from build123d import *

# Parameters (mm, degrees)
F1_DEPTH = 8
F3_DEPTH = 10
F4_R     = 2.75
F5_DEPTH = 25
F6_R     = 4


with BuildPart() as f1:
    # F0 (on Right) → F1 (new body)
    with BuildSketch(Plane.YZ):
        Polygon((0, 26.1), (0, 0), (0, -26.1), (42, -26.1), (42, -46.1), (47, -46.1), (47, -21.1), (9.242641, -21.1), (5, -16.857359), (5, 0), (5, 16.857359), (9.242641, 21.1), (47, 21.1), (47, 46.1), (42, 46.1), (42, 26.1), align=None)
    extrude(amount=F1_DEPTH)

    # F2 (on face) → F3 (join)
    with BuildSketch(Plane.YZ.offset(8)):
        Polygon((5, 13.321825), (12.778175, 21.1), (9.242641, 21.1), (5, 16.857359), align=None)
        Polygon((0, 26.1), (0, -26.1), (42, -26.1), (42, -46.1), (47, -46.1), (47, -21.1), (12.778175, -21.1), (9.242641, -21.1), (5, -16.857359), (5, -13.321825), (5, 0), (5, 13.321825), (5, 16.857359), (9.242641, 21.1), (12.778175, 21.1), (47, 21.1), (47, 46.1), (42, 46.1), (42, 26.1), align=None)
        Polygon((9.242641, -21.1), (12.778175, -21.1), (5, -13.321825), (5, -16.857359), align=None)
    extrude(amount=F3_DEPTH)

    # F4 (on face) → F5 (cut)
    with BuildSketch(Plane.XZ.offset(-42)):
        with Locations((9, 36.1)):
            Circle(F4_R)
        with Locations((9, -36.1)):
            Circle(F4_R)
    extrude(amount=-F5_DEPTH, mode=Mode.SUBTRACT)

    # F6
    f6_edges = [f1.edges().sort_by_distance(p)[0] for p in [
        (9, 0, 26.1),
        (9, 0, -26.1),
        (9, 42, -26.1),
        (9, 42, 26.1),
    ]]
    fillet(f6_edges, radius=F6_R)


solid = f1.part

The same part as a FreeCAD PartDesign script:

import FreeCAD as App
import Part
import Sketcher

V = App.Vector


def edges_at(feature, points):
    """Names of the edges that pass closest to the given points."""
    edges = feature.Shape.Edges
    near = lambda p: min(range(len(edges)), key=lambda i: edges[i].distToShape(Part.Vertex(*p))[0])
    return sorted({f"Edge{near(p) + 1}" for p in points})

doc = App.newDocument("Part")
params = doc.addObject("Spreadsheet::Sheet", "Params")
for row, (alias, value) in enumerate([
    ("sketch1_width", "42 mm"),
    ("sketch1_width2", "5 mm"),
    ("sketch1_height", "20 mm"),
    ("sketch1_height2", "25 mm"),
    ("sketch1_length", "6 mm"),
    ("pad1_length", "8 mm"),
    ("sketch2_width", "5 mm"),
    ("sketch2_width2", "42 mm"),
    ("sketch2_height", "25 mm"),
    ("sketch2_height2", "20 mm"),
    ("sketch2_length", "11.000001 mm"),
    ("pad2_length", "10 mm"),
    ("sketch3_diameter", "5.5 mm"),
    ("pocket1_length", "25 mm"),
    ("fillet_radius", "4 mm"),
], start=1):
    params.set(f"A{row}", alias)
    params.set(f"B{row}", "=" + value)
    params.setAlias(f"B{row}", alias)

body = doc.addObject("PartDesign::Body", "Body")

sketch1 = doc.addObject("Sketcher::SketchObject", "Sketch")
body.addObject(sketch1)
sketch1.AttachmentSupport = (doc.YZ_Plane, [""])
sketch1.MapMode = "FlatFace"
sketch1.addGeometry(Part.LineSegment(V(0, 26.1, 0), V(0, -26.1, 0)), False)
sketch1.addGeometry(Part.LineSegment(V(0, -26.1, 0), V(42, -26.1, 0)), False)
sketch1.addGeometry(Part.LineSegment(V(42, -26.1, 0), V(42, -46.1, 0)), False)
sketch1.addGeometry(Part.LineSegment(V(42, -46.1, 0), V(47, -46.1, 0)), False)
sketch1.addGeometry(Part.LineSegment(V(47, -46.1, 0), V(47, -21.1, 0)), False)
sketch1.addGeometry(Part.LineSegment(V(47, -21.1, 0), V(9.242641, -21.1, 0)), False)
sketch1.addGeometry(Part.LineSegment(V(9.242641, -21.1, 0), V(5, -16.857359, 0)), False)
sketch1.addGeometry(Part.LineSegment(V(5, -16.857359, 0), V(5, 16.857359, 0)), False)
sketch1.addGeometry(Part.LineSegment(V(5, 16.857359, 0), V(9.242641, 21.1, 0)), False)
sketch1.addGeometry(Part.LineSegment(V(9.242641, 21.1, 0), V(47, 21.1, 0)), False)
sketch1.addGeometry(Part.LineSegment(V(47, 21.1, 0), V(47, 46.1, 0)), False)
sketch1.addGeometry(Part.LineSegment(V(47, 46.1, 0), V(42, 46.1, 0)), False)
sketch1.addGeometry(Part.LineSegment(V(42, 46.1, 0), V(42, 26.1, 0)), False)
sketch1.addGeometry(Part.LineSegment(V(42, 26.1, 0), V(0, 26.1, 0)), False)
sketch1.addConstraint(Sketcher.Constraint("Coincident", 0, 2, 1, 1))
sketch1.addConstraint(Sketcher.Constraint("Coincident", 1, 2, 2, 1))
sketch1.addConstraint(Sketcher.Constraint("Coincident", 2, 2, 3, 1))
sketch1.addConstraint(Sketcher.Constraint("Coincident", 3, 2, 4, 1))
sketch1.addConstraint(Sketcher.Constraint("Coincident", 4, 2, 5, 1))
sketch1.addConstraint(Sketcher.Constraint("Coincident", 5, 2, 6, 1))
sketch1.addConstraint(Sketcher.Constraint("Coincident", 6, 2, 7, 1))
sketch1.addConstraint(Sketcher.Constraint("Coincident", 7, 2, 8, 1))
sketch1.addConstraint(Sketcher.Constraint("Coincident", 8, 2, 9, 1))
sketch1.addConstraint(Sketcher.Constraint("Coincident", 9, 2, 10, 1))
sketch1.addConstraint(Sketcher.Constraint("Coincident", 10, 2, 11, 1))
sketch1.addConstraint(Sketcher.Constraint("Coincident", 11, 2, 12, 1))
sketch1.addConstraint(Sketcher.Constraint("Coincident", 12, 2, 13, 1))
sketch1.addConstraint(Sketcher.Constraint("Coincident", 13, 2, 0, 1))
sketch1.addConstraint(Sketcher.Constraint("Vertical", 0))
sketch1.addConstraint(Sketcher.Constraint("Horizontal", 1))
sketch1.addConstraint(Sketcher.Constraint("Vertical", 2))
sketch1.addConstraint(Sketcher.Constraint("Horizontal", 3))
sketch1.addConstraint(Sketcher.Constraint("Vertical", 4))
sketch1.addConstraint(Sketcher.Constraint("Horizontal", 5))
sketch1.addConstraint(Sketcher.Constraint("Vertical", 7))
sketch1.addConstraint(Sketcher.Constraint("Horizontal", 9))
sketch1.addConstraint(Sketcher.Constraint("Vertical", 10))
sketch1.addConstraint(Sketcher.Constraint("Horizontal", 11))
sketch1.addConstraint(Sketcher.Constraint("Vertical", 12))
sketch1.addConstraint(Sketcher.Constraint("Horizontal", 13))
sketch1.addConstraint(Sketcher.Constraint("Symmetric", 0, 2, 13, 2, -1, 1))
sketch1.addConstraint(Sketcher.Constraint("Symmetric", 5, 2, 8, 2, -1))
sketch1.addConstraint(Sketcher.Constraint("Symmetric", 3, 2, 10, 2, -1))
sketch1.addConstraint(Sketcher.Constraint("Perpendicular", 6, 8))
sketch1.addConstraint(Sketcher.Constraint("Vertical", 2, 2, 11, 2))
sketch1.addConstraint(Sketcher.Constraint("Equal", 6, 8))
sketch1.addConstraint(Sketcher.Constraint("DistanceX", 1, 1, 1, 2, 42.0))
sketch1.addConstraint(Sketcher.Constraint("DistanceX", 3, 1, 3, 2, 5.0))
sketch1.addConstraint(Sketcher.Constraint("DistanceY", 2, 2, 2, 1, 20.0))
sketch1.addConstraint(Sketcher.Constraint("DistanceY", 4, 1, 4, 2, 25.0))
sketch1.addConstraint(Sketcher.Constraint("Distance", 6, 6.0))
sketch1.addConstraint(Sketcher.Constraint("DistanceY", 0, 2, 0, 1, 52.2))
sketch1.addConstraint(Sketcher.Constraint("DistanceX", -1, 1, 6, 2, 5.0))
sketch1.setExpression("Constraints[32]", "Params.sketch1_width")
sketch1.setExpression("Constraints[33]", "Params.sketch1_width2")
sketch1.setExpression("Constraints[34]", "Params.sketch1_height")
sketch1.setExpression("Constraints[35]", "Params.sketch1_height2")
sketch1.setExpression("Constraints[36]", "Params.sketch1_length")
pad1 = doc.addObject("PartDesign::Pad", "Pad")
body.addObject(pad1)
pad1.Profile = sketch1
pad1.setExpression("Length", "Params.pad1_length")

sketch2 = doc.addObject("Sketcher::SketchObject", "Sketch001")
body.addObject(sketch2)
sketch2.AttachmentSupport = (doc.YZ_Plane, [""])
sketch2.MapMode = "FlatFace"
sketch2.AttachmentOffset = App.Placement(V(0, 0, 8), App.Rotation())
sketch2.addGeometry(Part.LineSegment(V(5, 13.321825, 0), V(12.778175, 21.1, 0)), False)
sketch2.addGeometry(Part.LineSegment(V(12.778175, 21.1, 0), V(47, 21.1, 0)), False)
sketch2.addGeometry(Part.LineSegment(V(47, 21.1, 0), V(47, 46.1, 0)), False)
sketch2.addGeometry(Part.LineSegment(V(47, 46.1, 0), V(42, 46.1, 0)), False)
sketch2.addGeometry(Part.LineSegment(V(42, 46.1, 0), V(42, 26.1, 0)), False)
sketch2.addGeometry(Part.LineSegment(V(42, 26.1, 0), V(0, 26.1, 0)), False)
sketch2.addGeometry(Part.LineSegment(V(0, 26.1, 0), V(0, -26.1, 0)), False)
sketch2.addGeometry(Part.LineSegment(V(0, -26.1, 0), V(42, -26.1, 0)), False)
sketch2.addGeometry(Part.LineSegment(V(42, -26.1, 0), V(42, -46.1, 0)), False)
sketch2.addGeometry(Part.LineSegment(V(42, -46.1, 0), V(47, -46.1, 0)), False)
sketch2.addGeometry(Part.LineSegment(V(47, -46.1, 0), V(47, -21.1, 0)), False)
sketch2.addGeometry(Part.LineSegment(V(47, -21.1, 0), V(12.778175, -21.1, 0)), False)
sketch2.addGeometry(Part.LineSegment(V(12.778175, -21.1, 0), V(5, -13.321825, 0)), False)
sketch2.addGeometry(Part.LineSegment(V(5, -13.321825, 0), V(5, 13.321825, 0)), False)
sketch2.addConstraint(Sketcher.Constraint("Coincident", 0, 2, 1, 1))
sketch2.addConstraint(Sketcher.Constraint("Coincident", 1, 2, 2, 1))
sketch2.addConstraint(Sketcher.Constraint("Coincident", 2, 2, 3, 1))
sketch2.addConstraint(Sketcher.Constraint("Coincident", 3, 2, 4, 1))
sketch2.addConstraint(Sketcher.Constraint("Coincident", 4, 2, 5, 1))
sketch2.addConstraint(Sketcher.Constraint("Coincident", 5, 2, 6, 1))
sketch2.addConstraint(Sketcher.Constraint("Coincident", 6, 2, 7, 1))
sketch2.addConstraint(Sketcher.Constraint("Coincident", 7, 2, 8, 1))
sketch2.addConstraint(Sketcher.Constraint("Coincident", 8, 2, 9, 1))
sketch2.addConstraint(Sketcher.Constraint("Coincident", 9, 2, 10, 1))
sketch2.addConstraint(Sketcher.Constraint("Coincident", 10, 2, 11, 1))
sketch2.addConstraint(Sketcher.Constraint("Coincident", 11, 2, 12, 1))
sketch2.addConstraint(Sketcher.Constraint("Coincident", 12, 2, 13, 1))
sketch2.addConstraint(Sketcher.Constraint("Coincident", 13, 2, 0, 1))
sketch2.addConstraint(Sketcher.Constraint("Horizontal", 1))
sketch2.addConstraint(Sketcher.Constraint("Vertical", 2))
sketch2.addConstraint(Sketcher.Constraint("Horizontal", 3))
sketch2.addConstraint(Sketcher.Constraint("Vertical", 4))
sketch2.addConstraint(Sketcher.Constraint("Horizontal", 5))
sketch2.addConstraint(Sketcher.Constraint("Vertical", 6))
sketch2.addConstraint(Sketcher.Constraint("Horizontal", 7))
sketch2.addConstraint(Sketcher.Constraint("Vertical", 8))
sketch2.addConstraint(Sketcher.Constraint("Horizontal", 9))
sketch2.addConstraint(Sketcher.Constraint("Vertical", 10))
sketch2.addConstraint(Sketcher.Constraint("Horizontal", 11))
sketch2.addConstraint(Sketcher.Constraint("Vertical", 13))
sketch2.addConstraint(Sketcher.Constraint("Symmetric", 5, 2, 6, 2, -1, 1))
sketch2.addConstraint(Sketcher.Constraint("Symmetric", 3, 2, 8, 2, -1))
sketch2.addConstraint(Sketcher.Constraint("Symmetric", 1, 2, 10, 2, -1))
sketch2.addConstraint(Sketcher.Constraint("Perpendicular", 0, 12))
sketch2.addConstraint(Sketcher.Constraint("Vertical", 0, 2, 11, 2))
sketch2.addConstraint(Sketcher.Constraint("Equal", 0, 12))
sketch2.addConstraint(Sketcher.Constraint("DistanceX", 3, 2, 3, 1, 5.0))
sketch2.addConstraint(Sketcher.Constraint("DistanceX", 5, 2, 5, 1, 42.0))
sketch2.addConstraint(Sketcher.Constraint("DistanceY", 2, 1, 2, 2, 25.0))
sketch2.addConstraint(Sketcher.Constraint("DistanceY", 4, 2, 4, 1, 20.0))
sketch2.addConstraint(Sketcher.Constraint("Distance", 0, 11.000001))
sketch2.addConstraint(Sketcher.Constraint("DistanceY", 6, 2, 6, 1, 52.2))
sketch2.addConstraint(Sketcher.Constraint("DistanceX", -1, 1, 12, 2, 5.0))
sketch2.setExpression("Constraints[32]", "Params.sketch2_width")
sketch2.setExpression("Constraints[33]", "Params.sketch2_width2")
sketch2.setExpression("Constraints[34]", "Params.sketch2_height")
sketch2.setExpression("Constraints[35]", "Params.sketch2_height2")
sketch2.setExpression("Constraints[36]", "Params.sketch2_length")
pad2 = doc.addObject("PartDesign::Pad", "Pad001")
body.addObject(pad2)
pad2.Profile = sketch2
pad2.setExpression("Length", "Params.pad2_length")

sketch3 = doc.addObject("Sketcher::SketchObject", "Sketch002")
body.addObject(sketch3)
sketch3.AttachmentSupport = (doc.XZ_Plane, [""])
sketch3.MapMode = "FlatFace"
sketch3.AttachmentOffset = App.Placement(V(0, 0, -42), App.Rotation())
sketch3.addGeometry(Part.Circle(V(9, 36.1, 0), V(0, 0, 1), 2.75), False)
sketch3.addGeometry(Part.Circle(V(9, -36.1, 0), V(0, 0, 1), 2.75), False)
sketch3.addConstraint(Sketcher.Constraint("Equal", 0, 1))
sketch3.addConstraint(Sketcher.Constraint("Symmetric", 0, 3, 1, 3, -1))
sketch3.addConstraint(Sketcher.Constraint("Diameter", 0, 5.5))
sketch3.addConstraint(Sketcher.Constraint("DistanceX", -1, 1, 0, 3, 9.0))
sketch3.addConstraint(Sketcher.Constraint("DistanceY", -1, 1, 0, 3, 36.1))
sketch3.setExpression("Constraints[2]", "Params.sketch3_diameter")
pocket1 = doc.addObject("PartDesign::Pocket", "Pocket")
body.addObject(pocket1)
pocket1.Profile = sketch3
pocket1.setExpression("Length", "Params.pocket1_length")
doc.recompute()

fillet = doc.addObject("PartDesign::Fillet", "Fillet")
body.addObject(fillet)
fillet.Base = (pocket1, edges_at(pocket1, [
    (9, 0, 26.1),
    (9, 0, -26.1),
    (9, 42, -26.1),
    (9, 42, 26.1),
]))
fillet.setExpression("Radius", "Params.fillet_radius")

doc.recompute()
